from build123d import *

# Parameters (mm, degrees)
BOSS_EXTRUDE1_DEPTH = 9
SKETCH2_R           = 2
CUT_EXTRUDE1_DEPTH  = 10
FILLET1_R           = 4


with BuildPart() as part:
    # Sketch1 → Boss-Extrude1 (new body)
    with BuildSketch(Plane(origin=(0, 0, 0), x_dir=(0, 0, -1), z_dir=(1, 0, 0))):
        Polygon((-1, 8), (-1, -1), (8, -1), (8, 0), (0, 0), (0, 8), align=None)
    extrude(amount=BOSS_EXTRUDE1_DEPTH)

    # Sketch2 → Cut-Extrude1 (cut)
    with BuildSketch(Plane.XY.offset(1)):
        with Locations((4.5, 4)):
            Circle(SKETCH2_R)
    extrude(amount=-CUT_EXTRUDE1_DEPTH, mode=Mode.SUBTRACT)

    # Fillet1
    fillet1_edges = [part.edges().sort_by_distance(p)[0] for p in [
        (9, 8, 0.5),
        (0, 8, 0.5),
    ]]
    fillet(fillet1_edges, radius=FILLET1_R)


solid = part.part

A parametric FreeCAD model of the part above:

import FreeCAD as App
import Part
import Sketcher
from FreeCAD import Vector
Q = App.Units.Quantity


def edges_at(feature, points):
    """Names of the edges that pass closest to the given points."""
    edges = feature.Shape.Edges
    near = lambda p: min(range(len(edges)), key=lambda i: edges[i].distToShape(Part.Vertex(*p))[0])
    return sorted({f"Edge{near(p) + 1}" for p in points})

doc = App.newDocument("Part")
body = doc.addObject("PartDesign::Body", "Body")

sketch1 = doc.addObject("Sketcher::SketchObject", "Sketch")
body.addObject(sketch1)
sketch1.AttachmentSupport = (doc.YZ_Plane, [""])
sketch1.MapMode = "FlatFace"
sketch1.addGeometry(Part.LineSegment(Vector(8, 1, 0), Vector(-1, 1, 0)), False)
sketch1.addGeometry(Part.LineSegment(Vector(-1, 1, 0), Vector(-1, -8, 0)), False)
sketch1.addGeometry(Part.LineSegment(Vector(-1, -8, 0), Vector(0, -8, 0)), False)
sketch1.addGeometry(Part.LineSegment(Vector(0, -8, 0), Vector(0, 0, 0)), False)
sketch1.addGeometry(Part.LineSegment(Vector(0, 0, 0), Vector(8, 0, 0)), False)
sketch1.addGeometry(Part.LineSegment(Vector(8, 0, 0), Vector(8, 1, 0)), False)
sketch1.addConstraint(Sketcher.Constraint("Coincident", 0, 2, 1, 1))
sketch1.addConstraint(Sketcher.Constraint("Coincident", 1, 2, 2, 1))
sketch1.addConstraint(Sketcher.Constraint("Coincident", 2, 2, 3, 1))
sketch1.addConstraint(Sketcher.Constraint("Coincident", 3, 2, 4, 1))
sketch1.addConstraint(Sketcher.Constraint("Coincident", 4, 2, 5, 1))
sketch1.addConstraint(Sketcher.Constraint("Coincident", 5, 2, 0, 1))
sketch1.addConstraint(Sketcher.Constraint("Horizontal", 0))
sketch1.addConstraint(Sketcher.Constraint("Vertical", 1))
sketch1.addConstraint(Sketcher.Constraint("Horizontal", 2))
sketch1.addConstraint(Sketcher.Constraint("Vertical", 3))
sketch1.addConstraint(Sketcher.Constraint("Horizontal", 4))
sketch1.addConstraint(Sketcher.Constraint("Vertical", 5))
sketch1.addConstraint(Sketcher.Constraint("Coincident", 3, 2, -1, 1))
sketch1.addConstraint(Sketcher.Constraint("Equal", 0, 1))
sketch1.addConstraint(Sketcher.Constraint("Equal", 4, 3))
sketch1.addConstraint(Sketcher.Constraint("DistanceX", 0, 2, 0, 1, Q("9 mm")))
sketch1.addConstraint(Sketcher.Constraint("DistanceX", 2, 1, 2, 2, Q("1 mm")))
pad1 = doc.addObject("PartDesign::Pad", "Pad")
body.addObject(pad1)
pad1.Profile = sketch1
pad1.Length = 9

sketch2 = doc.addObject("Sketcher::SketchObject", "Sketch001")
body.addObject(sketch2)
sketch2.AttachmentSupport = (doc.XY_Plane, [""])
sketch2.MapMode = "FlatFace"
sketch2.AttachmentOffset = App.Placement(Vector(0, 0, 1), App.Rotation())
sketch2.addGeometry(Part.Circle(Vector(4.5, 4, 0), Vector(0, 0, 1), 2), False)
sketch2.addConstraint(Sketcher.Constraint("Diameter", 0, Q("4 mm")))
sketch2.addConstraint(Sketcher.Constraint("DistanceY", -1, 1, 0, 3, Q("4 mm")))
sketch2.addConstraint(Sketcher.Constraint("DistanceX", -1, 1, 0, 3, Q("4.5 mm")))
pocket1 = doc.addObject("PartDesign::Pocket", "Pocket")
body.addObject(pocket1)
pocket1.Profile = sketch2
pocket1.Length = 10
doc.recompute()

fillet = doc.addObject("PartDesign::Fillet", "Fillet")
body.addObject(fillet)
fillet.Base = (pocket1, edges_at(pocket1, [(9, 8, 0.5), (0, 8, 0.5)]))
fillet.Radius = 4

doc.recompute()
